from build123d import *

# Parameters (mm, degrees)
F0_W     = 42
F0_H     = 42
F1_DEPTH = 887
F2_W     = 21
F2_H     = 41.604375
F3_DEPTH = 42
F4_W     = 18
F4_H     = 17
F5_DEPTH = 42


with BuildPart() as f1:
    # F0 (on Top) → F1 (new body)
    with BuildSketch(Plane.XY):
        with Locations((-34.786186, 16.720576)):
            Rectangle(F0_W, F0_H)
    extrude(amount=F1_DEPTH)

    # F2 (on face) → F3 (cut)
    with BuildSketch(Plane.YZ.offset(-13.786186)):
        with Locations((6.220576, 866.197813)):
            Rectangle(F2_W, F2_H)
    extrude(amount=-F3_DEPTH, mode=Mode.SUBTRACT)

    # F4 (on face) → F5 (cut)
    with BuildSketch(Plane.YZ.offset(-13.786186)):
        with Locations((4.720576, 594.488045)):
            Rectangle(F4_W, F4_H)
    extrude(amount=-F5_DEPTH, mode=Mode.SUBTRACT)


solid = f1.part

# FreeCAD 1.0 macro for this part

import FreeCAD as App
import Part
import Sketcher
Q = App.Units.Quantity


def add_polygon(sketch, points):
    """Adds a closed chain of lines whose ends are joined by coincident constraints."""
    first, n = sketch.GeometryCount, len(points)
    for a, b in zip(points, points[1:] + points[:1]):
        sketch.addGeometry(Part.LineSegment(App.Vector(*a, 0), App.Vector(*b, 0)), False)
    for i in range(n):
        sketch.addConstraint(Sketcher.Constraint("Coincident", first + i, 2, first + (i + 1) % n, 1))

doc = App.newDocument("Part")
body = doc.addObject("PartDesign::Body", "Body")

sketch1 = body.newObject("Sketcher::SketchObject", "Sketch")
sketch1.AttachmentSupport = (doc.getObject("XY_Plane"), [""])
sketch1.MapMode = "FlatFace"
add_polygon(sketch1, [(-55.786186, 37.720576), (-55.786186, -4.279424), (-13.786186, -4.279424), (-13.786186, 37.720576)])
sketch1.addConstraint([
    Sketcher.Constraint("Vertical", 0),
    Sketcher.Constraint("Horizontal", 1),
    Sketcher.Constraint("Vertical", 2),
    Sketcher.Constraint("Horizontal", 3),
    Sketcher.Constraint("Equal", 3, 0),
    Sketcher.Constraint("DistanceX", 1, 1, 1, 2, Q("42 mm")),
    Sketcher.Constraint("DistanceX", 0, 2, -1, 1, Q("55.786186 mm")),
    Sketcher.Constraint("DistanceY", 0, 2, -1, 1, Q("4.279424 mm")),
])
pad1 = body.newObject("PartDesign::Pad", "Pad")
pad1.Profile = sketch1
pad1.Length = 887

sketch2 = body.newObject("Sketcher::SketchObject", "Sketch001")
sketch2.AttachmentSupport = (doc.getObject("YZ_Plane"), [""])
sketch2.MapMode = "FlatFace"
sketch2.AttachmentOffset = App.Placement(App.Vector(0, 0, -13.786186), App.Rotation())
add_polygon(sketch2, [(-4.279424, 887.000001), (-4.279424, 845.395626), (16.720576, 845.395626), (16.720576, 887.000001)])
sketch2.addConstraint([
    Sketcher.Constraint("Vertical", 0),
    Sketcher.Constraint("Horizontal", 1),
    Sketcher.Constraint("Vertical", 2),
    Sketcher.Constraint("Horizontal", 3),
    Sketcher.Constraint("DistanceX", 1, 1, 1, 2, Q("21 mm")),
    Sketcher.Constraint("DistanceY", -1, 1, 2, 2, Q("887.000001 mm")),
    Sketcher.Constraint("DistanceY", 0, 2, 0, 1, Q("41.604375 mm")),
    Sketcher.Constraint("DistanceX", 0, 2, -1, 1, Q("4.279424 mm")),
])
pocket1 = body.newObject("PartDesign::Pocket", "Pocket")
pocket1.Profile = sketch2
pocket1.Length = 42

sketch3 = body.newObject("Sketcher::SketchObject", "Sketch002")
sketch3.AttachmentSupport = (doc.getObject("YZ_Plane"), [""])
sketch3.MapMode = "FlatFace"
sketch3.AttachmentOffset = App.Placement(App.Vector(0, 0, -13.786186), App.Rotation())
add_polygon(sketch3, [(-4.279424, 602.988045), (-4.279424, 585.988045), (13.720576, 585.988045), (13.720576, 602.988045)])
sketch3.addConstraint([
    Sketcher.Constraint("Vertical", 0),
    Sketcher.Constraint("Horizontal", 1),
    Sketcher.Constraint("Vertical", 2),
    Sketcher.Constraint("Horizontal", 3),
    Sketcher.Constraint("DistanceX", 1, 1, 1, 2, Q("18 mm")),
    Sketcher.Constraint("DistanceY", 0, 2, 0, 1, Q("17 mm")),
    Sketcher.Constraint("DistanceX", 0, 2, -1, 1, Q("4.279424 mm")),
    Sketcher.Constraint("DistanceY", -1, 1, 0, 2, Q("585.988045 mm")),
])
pocket2 = body.newObject("PartDesign::Pocket", "Pocket001")
pocket2.Profile = sketch3
pocket2.Length = 42

doc.recompute()
